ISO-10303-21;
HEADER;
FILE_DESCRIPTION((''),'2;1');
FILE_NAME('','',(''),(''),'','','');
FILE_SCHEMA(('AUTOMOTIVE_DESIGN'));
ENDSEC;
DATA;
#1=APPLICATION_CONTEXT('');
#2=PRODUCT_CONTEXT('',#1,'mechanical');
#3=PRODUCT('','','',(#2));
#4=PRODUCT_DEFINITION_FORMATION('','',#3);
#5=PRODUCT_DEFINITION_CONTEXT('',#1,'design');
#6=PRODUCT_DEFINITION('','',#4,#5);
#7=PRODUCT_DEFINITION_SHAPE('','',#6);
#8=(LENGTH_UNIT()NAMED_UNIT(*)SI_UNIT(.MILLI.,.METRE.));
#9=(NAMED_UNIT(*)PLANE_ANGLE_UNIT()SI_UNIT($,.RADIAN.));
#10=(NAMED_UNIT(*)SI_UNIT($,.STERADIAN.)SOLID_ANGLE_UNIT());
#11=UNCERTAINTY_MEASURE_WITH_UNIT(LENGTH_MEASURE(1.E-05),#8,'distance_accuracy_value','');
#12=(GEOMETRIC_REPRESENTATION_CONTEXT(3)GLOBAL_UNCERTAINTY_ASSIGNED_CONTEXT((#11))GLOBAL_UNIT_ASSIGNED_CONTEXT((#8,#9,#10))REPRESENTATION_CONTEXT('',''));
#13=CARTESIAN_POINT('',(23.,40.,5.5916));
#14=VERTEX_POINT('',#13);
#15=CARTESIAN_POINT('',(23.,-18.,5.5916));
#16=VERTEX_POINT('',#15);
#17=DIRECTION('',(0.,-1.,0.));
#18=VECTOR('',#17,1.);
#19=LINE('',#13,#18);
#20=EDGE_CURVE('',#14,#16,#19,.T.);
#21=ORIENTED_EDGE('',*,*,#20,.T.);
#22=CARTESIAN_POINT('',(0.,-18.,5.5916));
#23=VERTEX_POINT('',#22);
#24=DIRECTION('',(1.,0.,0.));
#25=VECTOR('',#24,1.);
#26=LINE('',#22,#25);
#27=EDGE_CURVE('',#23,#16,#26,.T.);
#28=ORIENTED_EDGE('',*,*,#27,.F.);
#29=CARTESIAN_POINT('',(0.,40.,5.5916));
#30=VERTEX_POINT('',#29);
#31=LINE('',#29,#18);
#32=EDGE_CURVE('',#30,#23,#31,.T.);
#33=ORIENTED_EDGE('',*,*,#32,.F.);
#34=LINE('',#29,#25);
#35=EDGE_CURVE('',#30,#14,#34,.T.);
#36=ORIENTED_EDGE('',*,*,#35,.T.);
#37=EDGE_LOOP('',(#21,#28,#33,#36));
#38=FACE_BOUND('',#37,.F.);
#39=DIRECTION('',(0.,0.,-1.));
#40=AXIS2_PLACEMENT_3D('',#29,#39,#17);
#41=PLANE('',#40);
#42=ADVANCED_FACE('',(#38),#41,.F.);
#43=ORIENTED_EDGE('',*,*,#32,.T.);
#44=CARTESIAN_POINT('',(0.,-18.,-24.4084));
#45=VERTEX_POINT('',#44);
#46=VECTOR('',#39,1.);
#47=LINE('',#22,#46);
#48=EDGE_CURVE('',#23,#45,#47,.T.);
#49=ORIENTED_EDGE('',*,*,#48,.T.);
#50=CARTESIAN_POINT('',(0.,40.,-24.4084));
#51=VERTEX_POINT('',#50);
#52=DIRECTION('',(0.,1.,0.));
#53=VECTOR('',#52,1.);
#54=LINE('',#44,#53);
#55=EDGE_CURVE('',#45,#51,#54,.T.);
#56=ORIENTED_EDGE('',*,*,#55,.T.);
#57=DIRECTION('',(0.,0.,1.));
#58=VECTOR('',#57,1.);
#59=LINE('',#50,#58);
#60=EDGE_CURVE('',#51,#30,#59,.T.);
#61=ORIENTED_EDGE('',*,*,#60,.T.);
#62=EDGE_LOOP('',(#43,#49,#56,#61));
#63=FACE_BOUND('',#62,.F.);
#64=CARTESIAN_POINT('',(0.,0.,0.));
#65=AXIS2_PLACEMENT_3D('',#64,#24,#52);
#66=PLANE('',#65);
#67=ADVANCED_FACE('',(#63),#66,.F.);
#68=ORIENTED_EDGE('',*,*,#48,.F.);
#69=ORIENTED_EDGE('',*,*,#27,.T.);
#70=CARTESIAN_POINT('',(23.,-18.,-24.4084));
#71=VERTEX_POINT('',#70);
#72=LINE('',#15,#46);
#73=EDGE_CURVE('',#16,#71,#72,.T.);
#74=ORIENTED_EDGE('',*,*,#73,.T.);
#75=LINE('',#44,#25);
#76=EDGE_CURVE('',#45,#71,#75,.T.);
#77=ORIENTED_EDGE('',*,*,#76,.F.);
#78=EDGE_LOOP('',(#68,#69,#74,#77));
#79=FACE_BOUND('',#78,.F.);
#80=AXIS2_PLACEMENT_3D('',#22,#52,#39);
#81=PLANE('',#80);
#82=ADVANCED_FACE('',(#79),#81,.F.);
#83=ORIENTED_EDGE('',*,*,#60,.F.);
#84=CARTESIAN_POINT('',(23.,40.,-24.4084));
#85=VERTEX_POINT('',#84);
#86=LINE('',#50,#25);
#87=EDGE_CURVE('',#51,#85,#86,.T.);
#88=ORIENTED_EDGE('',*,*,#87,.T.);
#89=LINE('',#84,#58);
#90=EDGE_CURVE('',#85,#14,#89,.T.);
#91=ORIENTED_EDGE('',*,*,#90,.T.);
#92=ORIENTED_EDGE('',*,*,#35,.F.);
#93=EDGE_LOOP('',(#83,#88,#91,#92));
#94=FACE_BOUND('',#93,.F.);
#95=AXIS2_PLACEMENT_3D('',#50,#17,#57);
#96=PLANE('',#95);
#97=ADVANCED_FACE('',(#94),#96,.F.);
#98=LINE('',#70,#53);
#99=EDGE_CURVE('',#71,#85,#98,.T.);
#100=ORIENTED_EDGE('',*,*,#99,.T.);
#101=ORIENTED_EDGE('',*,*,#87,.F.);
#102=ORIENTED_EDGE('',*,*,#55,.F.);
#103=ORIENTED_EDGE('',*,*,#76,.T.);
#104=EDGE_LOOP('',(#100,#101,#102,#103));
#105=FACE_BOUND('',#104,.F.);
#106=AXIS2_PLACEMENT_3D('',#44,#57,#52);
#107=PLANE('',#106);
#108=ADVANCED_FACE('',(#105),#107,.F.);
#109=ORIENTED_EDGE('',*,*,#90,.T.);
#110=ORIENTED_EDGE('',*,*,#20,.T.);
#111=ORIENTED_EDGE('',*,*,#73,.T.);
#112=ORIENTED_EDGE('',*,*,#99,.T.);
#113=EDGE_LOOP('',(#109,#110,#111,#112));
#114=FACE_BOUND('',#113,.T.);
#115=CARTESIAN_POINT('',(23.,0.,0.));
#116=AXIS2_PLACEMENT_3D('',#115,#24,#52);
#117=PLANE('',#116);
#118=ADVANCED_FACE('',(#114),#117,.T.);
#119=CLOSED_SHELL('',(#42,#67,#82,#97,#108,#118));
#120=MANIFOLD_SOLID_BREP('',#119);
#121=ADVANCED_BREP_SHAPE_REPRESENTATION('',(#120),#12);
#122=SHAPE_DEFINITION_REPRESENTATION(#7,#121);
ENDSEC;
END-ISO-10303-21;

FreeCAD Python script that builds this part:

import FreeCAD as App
import Part
import Sketcher

V = App.Vector
Q = App.Units.Quantity

doc = App.newDocument("Part")
body = doc.addObject("PartDesign::Body", "Body")

# Sketch on YZ plane
sketch1 = doc.addObject("Sketcher::SketchObject", "Sketch")
body.addObject(sketch1)
sketch1.AttachmentSupport = (doc.YZ_Plane, [""])
sketch1.MapMode = "FlatFace"
sketch1.addGeometry([
    Part.LineSegment(V(40, -24, 0), V(40, 6, 0)),
    Part.LineSegment(V(40, 6, 0), V(-18, 6, 0)),
    Part.LineSegment(V(-18, 6, 0), V(-18, -24, 0)),
    Part.LineSegment(V(-18, -24, 0), V(40, -24, 0)),
], False)
sketch1.addConstraint([
    Sketcher.Constraint("Coincident", 0, 2, 1, 1),
    Sketcher.Constraint("Coincident", 1, 2, 2, 1),
    Sketcher.Constraint("Coincident", 2, 2, 3, 1),
    Sketcher.Constraint("Coincident", 3, 2, 0, 1),
    Sketcher.Constraint("Vertical", 0),
    Sketcher.Constraint("Horizontal", 1),
    Sketcher.Constraint("Vertical", 2),
    Sketcher.Constraint("Horizontal", 3),
    Sketcher.Constraint("DistanceX", 1, 2, 1, 1, Q("58 mm")),
    Sketcher.Constraint("DistanceY", 0, 1, 0, 2, Q("30 mm")),
    Sketcher.Constraint("DistanceX", -1, 1, 0, 2, Q("40 mm")),
    Sketcher.Constraint("DistanceY", -1, 1, 0, 2, Q("5.5916 mm")),
])
pad1 = doc.addObject("PartDesign::Pad", "Pad")
body.addObject(pad1)
pad1.Profile = sketch1
pad1.Length = 23

doc.recompute()
